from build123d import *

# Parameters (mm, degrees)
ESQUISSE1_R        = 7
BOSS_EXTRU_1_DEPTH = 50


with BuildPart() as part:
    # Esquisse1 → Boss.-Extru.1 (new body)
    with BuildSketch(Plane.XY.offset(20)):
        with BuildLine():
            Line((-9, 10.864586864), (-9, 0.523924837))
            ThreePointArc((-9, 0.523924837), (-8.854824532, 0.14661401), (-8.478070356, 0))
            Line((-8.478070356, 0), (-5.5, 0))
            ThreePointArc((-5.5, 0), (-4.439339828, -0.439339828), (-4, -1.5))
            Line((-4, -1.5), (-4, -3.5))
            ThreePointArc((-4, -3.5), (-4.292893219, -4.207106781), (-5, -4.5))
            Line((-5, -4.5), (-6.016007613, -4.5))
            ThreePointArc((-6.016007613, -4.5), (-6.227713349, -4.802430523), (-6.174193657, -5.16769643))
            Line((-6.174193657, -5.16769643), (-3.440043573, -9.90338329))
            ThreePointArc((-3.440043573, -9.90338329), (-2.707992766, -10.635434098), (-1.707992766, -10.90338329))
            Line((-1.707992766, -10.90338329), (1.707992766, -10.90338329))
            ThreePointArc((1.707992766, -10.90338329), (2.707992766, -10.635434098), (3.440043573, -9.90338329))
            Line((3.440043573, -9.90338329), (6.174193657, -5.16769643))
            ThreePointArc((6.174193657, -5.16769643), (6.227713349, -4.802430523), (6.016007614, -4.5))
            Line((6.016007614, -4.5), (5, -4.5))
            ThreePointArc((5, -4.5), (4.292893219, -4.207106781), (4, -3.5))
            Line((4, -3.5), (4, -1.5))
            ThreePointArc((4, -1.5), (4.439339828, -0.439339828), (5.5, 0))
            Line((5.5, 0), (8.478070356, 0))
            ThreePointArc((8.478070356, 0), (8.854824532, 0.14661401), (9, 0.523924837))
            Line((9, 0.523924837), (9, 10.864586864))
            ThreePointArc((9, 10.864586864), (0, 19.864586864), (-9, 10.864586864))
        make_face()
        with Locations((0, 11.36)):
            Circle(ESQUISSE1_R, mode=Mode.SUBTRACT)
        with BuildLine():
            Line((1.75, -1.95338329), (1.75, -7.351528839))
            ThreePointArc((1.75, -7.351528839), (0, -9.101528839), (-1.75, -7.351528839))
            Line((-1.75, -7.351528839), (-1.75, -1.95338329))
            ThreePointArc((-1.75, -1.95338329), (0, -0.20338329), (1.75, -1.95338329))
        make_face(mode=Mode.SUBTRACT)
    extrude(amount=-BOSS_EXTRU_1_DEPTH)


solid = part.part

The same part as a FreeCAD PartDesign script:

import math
import FreeCAD as App
import Part
import Sketcher
Q = App.Units.Quantity

doc = App.newDocument("Part")
body = doc.addObject("PartDesign::Body", "Body")

sketch1 = doc.addObject("Sketcher::SketchObject", "Sketch")
body.addObject(sketch1)
sketch1.AttachmentSupport = (doc.XY_Plane, [""])
sketch1.MapMode = "FlatFace"
sketch1.AttachmentOffset = App.Placement(App.Vector(0, 0, 20), App.Rotation())
sketch1.addGeometry(Part.LineSegment(App.Vector(-9, 10.9, 0), App.Vector(-9, 0.5, 0)), False)
sketch1.addGeometry(Part.ArcOfCircle(Part.Circle(App.Vector(-8.5, 0.5, 0), App.Vector(0, 0, 1), 0.5), math.radians(177), math.radians(273)), False)
sketch1.addGeometry(Part.LineSegment(App.Vector(-8.5, 0, 0), App.Vector(-5.5, 0, 0)), False)
sketch1.addGeometry(Part.ArcOfCircle(Part.Circle(App.Vector(-5.5, -1.5, 0), App.Vector(0, 0, 1), 1.5), math.radians(0), math.radians(90)), False)
sketch1.addGeometry(Part.LineSegment(App.Vector(-4, -1.5, 0), App.Vector(-4, -3.5, 0)), False)
sketch1.addGeometry(Part.ArcOfCircle(Part.Circle(App.Vector(-5, -3.5, 0), App.Vector(0, 0, 1), 1), math.radians(-90), math.radians(0)), False)
sketch1.addGeometry(Part.LineSegment(App.Vector(-5, -4.5, 0), App.Vector(-6, -4.5, 0)), False)
sketch1.addGeometry(Part.ArcOfCircle(Part.Circle(App.Vector(-5.7, -4.9, 0), App.Vector(0, 0, 1), 0.5), math.radians(123), math.radians(210)), False)
sketch1.addGeometry(Part.LineSegment(App.Vector(-6.2, -5.2, 0), App.Vector(-3.4, -9.9, 0)), False)
sketch1.addGeometry(Part.ArcOfCircle(Part.Circle(App.Vector(-1.7, -8.9, 0), App.Vector(0, 0, 1), 2), math.radians(-150), math.radians(-90)), False)
sketch1.addGeometry(Part.LineSegment(App.Vector(-1.7, -10.9, 0), App.Vector(1.7, -10.9, 0)), False)
sketch1.addGeometry(Part.ArcOfCircle(Part.Circle(App.Vector(1.7, -8.9, 0), App.Vector(0, 0, 1), 2), math.radians(-90), math.radians(-30)), False)
sketch1.addGeometry(Part.LineSegment(App.Vector(3.4, -9.9, 0), App.Vector(6.2, -5.2, 0)), False)
sketch1.addGeometry(Part.ArcOfCircle(Part.Circle(App.Vector(5.7, -4.9, 0), App.Vector(0, 0, 1), 0.5), math.radians(-30), math.radians(57)), False)
sketch1.addGeometry(Part.LineSegment(App.Vector(6, -4.5, 0), App.Vector(5, -4.5, 0)), False)
sketch1.addGeometry(Part.ArcOfCircle(Part.Circle(App.Vector(5, -3.5, 0), App.Vector(0, 0, 1), 1), math.radians(-180), math.radians(-90)), False)
sketch1.addGeometry(Part.LineSegment(App.Vector(4, -3.5, 0), App.Vector(4, -1.5, 0)), False)
sketch1.addGeometry(Part.ArcOfCircle(Part.Circle(App.Vector(5.5, -1.5, 0), App.Vector(0, 0, 1), 1.5), math.radians(90), math.radians(180)), False)
sketch1.addGeometry(Part.LineSegment(App.Vector(5.5, 0, 0), App.Vector(8.5, 0, 0)), False)
sketch1.addGeometry(Part.ArcOfCircle(Part.Circle(App.Vector(8.5, 0.5, 0), App.Vector(0, 0, 1), 0.5), math.radians(-93), math.radians(3)), False)
sketch1.addGeometry(Part.LineSegment(App.Vector(9, 0.5, 0), App.Vector(9, 10.9, 0)), False)
sketch1.addGeometry(Part.ArcOfCircle(Part.Circle(App.Vector(0, 10.9, 0), App.Vector(0, 0, 1), 9), math.radians(0), math.radians(180)), False)
sketch1.addGeometry(Part.ArcOfCircle(Part.Circle(App.Vector(0, -2, 0), App.Vector(0, 0, 1), 1.8), math.radians(0), math.radians(180)), False)
sketch1.addGeometry(Part.LineSegment(App.Vector(1.8, -2, 0), App.Vector(1.8, -7.4, 0)), False)
sketch1.addGeometry(Part.ArcOfCircle(Part.Circle(App.Vector(0, -7.4, 0), App.Vector(0, 0, 1), 1.8), math.radians(180), math.radians(360)), False)
sketch1.addGeometry(Part.LineSegment(App.Vector(-1.8, -7.4, 0), App.Vector(-1.8, -2, 0)), False)
sketch1.addGeometry(Part.Circle(App.Vector(0, 11.4, 0), App.Vector(0, 0, 1), 7), False)
sketch1.addConstraint(Sketcher.Constraint("Coincident", 0, 2, 1, 1))
sketch1.addConstraint(Sketcher.Constraint("Coincident", 1, 2, 2, 1))
sketch1.addConstraint(Sketcher.Constraint("Tangent", 2, 2, 3, 2))
sketch1.addConstraint(Sketcher.Constraint("Tangent", 3, 1, 4, 1))
sketch1.addConstraint(Sketcher.Constraint("Tangent", 4, 2, 5, 2))
sketch1.addConstraint(Sketcher.Constraint("Tangent", 5, 1, 6, 1))
sketch1.addConstraint(Sketcher.Constraint("Coincident", 6, 2, 7, 1))
sketch1.addConstraint(Sketcher.Constraint("Tangent", 7, 2, 8, 1))
sketch1.addConstraint(Sketcher.Constraint("Tangent", 8, 2, 9, 1))
sketch1.addConstraint(Sketcher.Constraint("Tangent", 9, 2, 10, 1))
sketch1.addConstraint(Sketcher.Constraint("Tangent", 10, 2, 11, 1))
sketch1.addConstraint(Sketcher.Constraint("Tangent", 11, 2, 12, 1))
sketch1.addConstraint(Sketcher.Constraint("Tangent", 12, 2, 13, 1))
sketch1.addConstraint(Sketcher.Constraint("Coincident", 13, 2, 14, 1))
sketch1.addConstraint(Sketcher.Constraint("Tangent", 14, 2, 15, 2))
sketch1.addConstraint(Sketcher.Constraint("Tangent", 15, 1, 16, 1))
sketch1.addConstraint(Sketcher.Constraint("Tangent", 16, 2, 17, 2))
sketch1.addConstraint(Sketcher.Constraint("Tangent", 17, 1, 18, 1))
sketch1.addConstraint(Sketcher.Constraint("Coincident", 18, 2, 19, 1))
sketch1.addConstraint(Sketcher.Constraint("Coincident", 19, 2, 20, 1))
sketch1.addConstraint(Sketcher.Constraint("Tangent", 20, 2, 21, 1))
sketch1.addConstraint(Sketcher.Constraint("Tangent", 21, 2, 0, 1))
sketch1.addConstraint(Sketcher.Constraint("Tangent", 22, 1, 23, 1))
sketch1.addConstraint(Sketcher.Constraint("Tangent", 23, 2, 24, 2))
sketch1.addConstraint(Sketcher.Constraint("Tangent", 24, 1, 25, 1))
sketch1.addConstraint(Sketcher.Constraint("Tangent", 25, 2, 22, 2))
sketch1.addConstraint(Sketcher.Constraint("Vertical", 0))
sketch1.addConstraint(Sketcher.Constraint("Horizontal", 2))
sketch1.addConstraint(Sketcher.Constraint("Vertical", 4))
sketch1.addConstraint(Sketcher.Constraint("Horizontal", 6))
sketch1.addConstraint(Sketcher.Constraint("Horizontal", 10))
sketch1.addConstraint(Sketcher.Constraint("Horizontal", 14))
sketch1.addConstraint(Sketcher.Constraint("Vertical", 16))
sketch1.addConstraint(Sketcher.Constraint("Horizontal", 18))
sketch1.addConstraint(Sketcher.Constraint("Vertical", 20))
sketch1.addConstraint(Sketcher.Constraint("Vertical", 23))
sketch1.addConstraint(Sketcher.Constraint("Vertical", 25))
sketch1.addConstraint(Sketcher.Constraint("Equal", 1, 7))
sketch1.addConstraint(Sketcher.Constraint("Equal", 9, 11))
sketch1.addConstraint(Sketcher.Constraint("Equal", 7, 13))
sketch1.addConstraint(Sketcher.Constraint("Equal", 5, 15))
sketch1.addConstraint(Sketcher.Constraint("Equal", 3, 17))
sketch1.addConstraint(Sketcher.Constraint("Equal", 13, 19))
sketch1.addConstraint(Sketcher.Constraint("Symmetric", 2, 2, 17, 1, -1, 1))
sketch1.addConstraint(Sketcher.Constraint("Symmetric", 7, 3, 13, 3, -2))
sketch1.addConstraint(Sketcher.Constraint("Symmetric", 1, 3, 19, 3, -2))
sketch1.addConstraint(Sketcher.Constraint("PointOnObject", 21, 3, -2))
sketch1.addConstraint(Sketcher.Constraint("PointOnObject", 22, 3, -2))
sketch1.addConstraint(Sketcher.Constraint("PointOnObject", 26, 3, -2))
sketch1.addConstraint(Sketcher.Constraint("PointOnObject", 1, 2, -1))
sketch1.addConstraint(Sketcher.Constraint("Horizontal", 5, 3, 15, 3))
sketch1.addConstraint(Sketcher.Constraint("Horizontal", 8, 2, 11, 2))
sketch1.addConstraint(Sketcher.Constraint("Diameter", 26, Q("14 mm")))
sketch1.addConstraint(Sketcher.Constraint("Radius", 5, Q("1 mm")))
sketch1.addConstraint(Sketcher.Constraint("Radius", 9, Q("2 mm")))
sketch1.addConstraint(Sketcher.Constraint("Radius", 21, Q("9 mm")))
sketch1.addConstraint(Sketcher.Constraint("Radius", 1, Q("0.5 mm")))
sketch1.addConstraint(Sketcher.Constraint("Radius", 3, Q("1.5 mm")))
sketch1.addConstraint(Sketcher.Constraint("DistanceY", 4, 2, 4, 1, Q("2 mm")))
sketch1.addConstraint(Sketcher.Constraint("Angle", 8, Q("-60 deg")))
sketch1.addConstraint(Sketcher.Constraint("Radius", 22, Q("1.75 mm")))
sketch1.addConstraint(Sketcher.Constraint("DistanceX", 5, 3, -1, 1, Q("5 mm")))
sketch1.addConstraint(Sketcher.Constraint("DistanceY", -1, 1, 26, 3, Q("11.36 mm")))
sketch1.addConstraint(Sketcher.Constraint("Distance", 8, Q("5.4683 mm")))
sketch1.addConstraint(Sketcher.Constraint("DistanceX", 2, 1, 2, 2, Q("2.97807 mm")))
sketch1.addConstraint(Sketcher.Constraint("DistanceX", 6, 2, 6, 1, Q("1.016008 mm")))
sketch1.addConstraint(Sketcher.Constraint("DistanceX", 10, 1, 10, 2, Q("3.415986 mm")))
sketch1.addConstraint(Sketcher.Constraint("DistanceY", 0, 2, 0, 1, Q("10.340662 mm")))
sketch1.addConstraint(Sketcher.Constraint("DistanceY", 23, 2, 23, 1, Q("5.398146 mm")))
sketch1.addConstraint(Sketcher.Constraint("DistanceY", 24, 3, -1, 1, Q("7.351529 mm")))
sketch1.addConstraint(Sketcher.Constraint("DistanceX", 1, 3, 11, 3, Q("10.20859 mm")))
pad1 = doc.addObject("PartDesign::Pad", "Pad")
body.addObject(pad1)
pad1.Profile = sketch1
pad1.Length = 50
pad1.Reversed = True

doc.recompute()
